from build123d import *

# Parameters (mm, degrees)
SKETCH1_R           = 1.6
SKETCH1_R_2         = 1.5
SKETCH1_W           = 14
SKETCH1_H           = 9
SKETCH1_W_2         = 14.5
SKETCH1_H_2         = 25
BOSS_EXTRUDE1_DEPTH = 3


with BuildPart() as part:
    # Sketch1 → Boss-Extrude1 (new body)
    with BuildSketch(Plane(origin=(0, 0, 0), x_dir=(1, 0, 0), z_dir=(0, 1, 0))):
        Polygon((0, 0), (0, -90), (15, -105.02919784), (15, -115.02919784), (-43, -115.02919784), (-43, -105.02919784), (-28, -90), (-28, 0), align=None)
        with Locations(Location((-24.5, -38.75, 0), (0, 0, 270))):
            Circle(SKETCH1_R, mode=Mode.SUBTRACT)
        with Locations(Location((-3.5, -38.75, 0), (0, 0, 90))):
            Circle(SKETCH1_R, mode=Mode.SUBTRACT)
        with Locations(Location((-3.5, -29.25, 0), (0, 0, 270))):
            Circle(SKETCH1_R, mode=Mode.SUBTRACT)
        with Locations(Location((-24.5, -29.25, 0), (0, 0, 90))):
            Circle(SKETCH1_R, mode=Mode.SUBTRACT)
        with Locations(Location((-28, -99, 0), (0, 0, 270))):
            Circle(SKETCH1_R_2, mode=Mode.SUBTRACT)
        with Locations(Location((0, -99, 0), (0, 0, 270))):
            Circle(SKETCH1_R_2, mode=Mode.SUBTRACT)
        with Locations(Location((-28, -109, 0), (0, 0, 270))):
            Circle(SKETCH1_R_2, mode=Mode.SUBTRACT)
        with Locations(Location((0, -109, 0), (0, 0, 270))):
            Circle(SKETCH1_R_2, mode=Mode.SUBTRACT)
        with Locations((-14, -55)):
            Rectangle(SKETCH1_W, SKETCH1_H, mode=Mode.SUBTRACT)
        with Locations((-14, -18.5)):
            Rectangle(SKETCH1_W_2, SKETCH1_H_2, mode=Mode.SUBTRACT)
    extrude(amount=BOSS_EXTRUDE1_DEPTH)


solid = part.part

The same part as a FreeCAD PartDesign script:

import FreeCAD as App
import Part
import Sketcher
from FreeCAD import Vector

doc = App.newDocument("Part")
params = doc.addObject("Spreadsheet::Sheet", "Params")
for row, (alias, value) in enumerate([
    ("sketch1_diameter", "3 mm"),
    ("sketch1_diameter2", "3.2 mm"),
    ("sketch1_width", "28 mm"),
    ("sketch1_width2", "58 mm"),
    ("sketch1_width3", "14 mm"),
    ("pad1_length", "3 mm"),
], start=1):
    params.set(f"A{row}", alias)
    params.set(f"B{row}", "=" + value)
    params.setAlias(f"B{row}", alias)

body = doc.addObject("PartDesign::Body", "Body")

# Sketch on XZ plane
sketch1 = body.newObject("Sketcher::SketchObject", "Sketch")
sketch1.AttachmentSupport = (doc.getObject("XZ_Plane"), [""])
sketch1.MapMode = "FlatFace"
sketch1.addGeometry([
    Part.LineSegment(Vector(0, 90, 0), Vector(0, 0, 0)),  # 0
    Part.LineSegment(Vector(0, 0, 0), Vector(-28, 0, 0)),  # 1
    Part.LineSegment(Vector(-28, 0, 0), Vector(-28, 90, 0)),  # 2
    Part.LineSegment(Vector(-28, 90, 0), Vector(-43, 105, 0)),  # 3
    Part.LineSegment(Vector(-43, 105, 0), Vector(-43, 115, 0)),  # 4
    Part.LineSegment(Vector(-43, 115, 0), Vector(15, 115, 0)),  # 5
    Part.LineSegment(Vector(15, 115, 0), Vector(15, 105, 0)),  # 6
    Part.LineSegment(Vector(15, 105, 0), Vector(0, 90, 0)),  # 7
    Part.Circle(Vector(0, 109, 0), Vector(0, 0, 1), 1.5),  # 8
    Part.Circle(Vector(0, 99, 0), Vector(0, 0, 1), 1.5),  # 9
    Part.Circle(Vector(-28, 109, 0), Vector(0, 0, 1), 1.5),  # 10
    Part.Circle(Vector(-28, 99, 0), Vector(0, 0, 1), 1.5),  # 11
    Part.Circle(Vector(-3.5, 38.8, 0), Vector(0, 0, 1), 1.6),  # 12
    Part.Circle(Vector(-3.5, 29.2, 0), Vector(0, 0, 1), 1.6),  # 13
    Part.LineSegment(Vector(-21, 59.5, 0), Vector(-21, 50.5, 0)),  # 14
    Part.LineSegment(Vector(-21, 50.5, 0), Vector(-7, 50.5, 0)),  # 15
    Part.LineSegment(Vector(-7, 50.5, 0), Vector(-7, 59.5, 0)),  # 16
    Part.LineSegment(Vector(-7, 59.5, 0), Vector(-21, 59.5, 0)),  # 17
    Part.Circle(Vector(-24.5, 38.8, 0), Vector(0, 0, 1), 1.6),  # 18
    Part.LineSegment(Vector(-21.2, 31, 0), Vector(-21.2, 6, 0)),  # 19
    Part.LineSegment(Vector(-21.2, 6, 0), Vector(-6.8, 6, 0)),  # 20
    Part.LineSegment(Vector(-6.8, 6, 0), Vector(-6.8, 31, 0)),  # 21
    Part.LineSegment(Vector(-6.8, 31, 0), Vector(-21.2, 31, 0)),  # 22
    Part.Circle(Vector(-24.5, 29.2, 0), Vector(0, 0, 1), 1.6),  # 23
], False)
sketch1.addConstraint([
    Sketcher.Constraint("Coincident", 0, 2, 1, 1),
    Sketcher.Constraint("Coincident", 1, 2, 2, 1),
    Sketcher.Constraint("Coincident", 2, 2, 3, 1),
    Sketcher.Constraint("Coincident", 3, 2, 4, 1),
    Sketcher.Constraint("Coincident", 4, 2, 5, 1),
    Sketcher.Constraint("Coincident", 5, 2, 6, 1),
    Sketcher.Constraint("Coincident", 6, 2, 7, 1),
    Sketcher.Constraint("Coincident", 7, 2, 0, 1),
    Sketcher.Constraint("Coincident", 14, 2, 15, 1),
    Sketcher.Constraint("Coincident", 15, 2, 16, 1),
    Sketcher.Constraint("Coincident", 16, 2, 17, 1),
    Sketcher.Constraint("Coincident", 17, 2, 14, 1),
    Sketcher.Constraint("Coincident", 19, 2, 20, 1),
    Sketcher.Constraint("Coincident", 20, 2, 21, 1),
    Sketcher.Constraint("Coincident", 21, 2, 22, 1),
    Sketcher.Constraint("Coincident", 22, 2, 19, 1),
    Sketcher.Constraint("Vertical", 0),
    Sketcher.Constraint("Horizontal", 1),
    Sketcher.Constraint("Vertical", 2),
    Sketcher.Constraint("Vertical", 4),
    Sketcher.Constraint("Horizontal", 5),
    Sketcher.Constraint("Vertical", 6),
    Sketcher.Constraint("Vertical", 14),
    Sketcher.Constraint("Horizontal", 15),
    Sketcher.Constraint("Vertical", 16),
    Sketcher.Constraint("Horizontal", 17),
    Sketcher.Constraint("Vertical", 19),
    Sketcher.Constraint("Horizontal", 20),
    Sketcher.Constraint("Vertical", 21),
    Sketcher.Constraint("Horizontal", 22),
    Sketcher.Constraint("Coincident", 0, 2, -1, 1),
    Sketcher.Constraint("Equal", 8, 9),
    Sketcher.Constraint("Equal", 9, 10),
    Sketcher.Constraint("Equal", 10, 11),
    Sketcher.Constraint("Equal", 12, 13),
    Sketcher.Constraint("Equal", 13, 18),
    Sketcher.Constraint("Equal", 18, 23),
    Sketcher.Constraint("PointOnObject", 8, 3, -2),
    Sketcher.Constraint("PointOnObject", 9, 3, -2),
    Sketcher.Constraint("Horizontal", 8, 3, 10, 3),
    Sketcher.Constraint("Horizontal", 9, 3, 11, 3),
    Sketcher.Constraint("Horizontal", 12, 3, 18, 3),
    Sketcher.Constraint("Horizontal", 13, 3, 23, 3),
    Sketcher.Constraint("Horizontal", 3, 2, 6, 2),
    Sketcher.Constraint("Horizontal", 2, 2, 7, 2),
    Sketcher.Constraint("Vertical", 10, 3, 11, 3),
    Sketcher.Constraint("Vertical", 12, 3, 13, 3),
    Sketcher.Constraint("Vertical", 18, 3, 23, 3),
    Sketcher.Constraint("Vertical", 11, 3, 1, 2),
    Sketcher.Constraint("Equal", 3, 7),
    Sketcher.Constraint("Diameter", 8, 3.0),
    Sketcher.Constraint("Diameter", 12, 3.2),
    Sketcher.Constraint("DistanceX", 1, 2, 1, 1, 28.0),
    Sketcher.Constraint("DistanceX", 5, 1, 5, 2, 58.0),
    Sketcher.Constraint("DistanceX", 15, 1, 15, 2, 14.0),
    Sketcher.Constraint("DistanceY", 0, 2, 0, 1, 90.0),
    Sketcher.Constraint("DistanceY", 4, 1, 4, 2, 10.0),
    Sketcher.Constraint("DistanceY", 14, 2, 14, 1, 9.0),
    Sketcher.Constraint("DistanceY", 19, 2, 19, 1, 25.0),
    Sketcher.Constraint("DistanceX", 20, 1, 20, 2, 14.5),
    Sketcher.Constraint("DistanceY", -1, 1, 8, 3, 109.0),
    Sketcher.Constraint("DistanceY", -1, 1, 9, 3, 99.0),
    Sketcher.Constraint("DistanceX", 14, 2, -1, 1, 21.0),
    Sketcher.Constraint("DistanceY", -1, 1, 19, 2, 6.0),
    Sketcher.Constraint("DistanceX", 18, 3, 12, 3, 21.0),
    Sketcher.Constraint("DistanceX", 12, 3, -1, 1, 3.5),
    Sketcher.Constraint("DistanceY", -1, 1, 14, 2, 50.5),
    Sketcher.Constraint("DistanceY", 13, 3, 12, 3, 9.5),
    Sketcher.Constraint("DistanceY", -1, 1, 12, 3, 38.75),
    Sketcher.Constraint("DistanceX", 19, 2, -1, 1, 21.25),
    Sketcher.Constraint("Distance", 3, 21.233859),
])
sketch1.setExpression("Constraints[50]", "Params.sketch1_diameter")
sketch1.setExpression("Constraints[51]", "Params.sketch1_diameter2")
sketch1.setExpression("Constraints[52]", "Params.sketch1_width")
sketch1.setExpression("Constraints[53]", "Params.sketch1_width2")
sketch1.setExpression("Constraints[54]", "Params.sketch1_width3")
pad1 = body.newObject("PartDesign::Pad", "Pad")
pad1.Profile = sketch1
pad1.setExpression("Length", "Params.pad1_length")
pad1.Reversed = True

doc.recompute()
